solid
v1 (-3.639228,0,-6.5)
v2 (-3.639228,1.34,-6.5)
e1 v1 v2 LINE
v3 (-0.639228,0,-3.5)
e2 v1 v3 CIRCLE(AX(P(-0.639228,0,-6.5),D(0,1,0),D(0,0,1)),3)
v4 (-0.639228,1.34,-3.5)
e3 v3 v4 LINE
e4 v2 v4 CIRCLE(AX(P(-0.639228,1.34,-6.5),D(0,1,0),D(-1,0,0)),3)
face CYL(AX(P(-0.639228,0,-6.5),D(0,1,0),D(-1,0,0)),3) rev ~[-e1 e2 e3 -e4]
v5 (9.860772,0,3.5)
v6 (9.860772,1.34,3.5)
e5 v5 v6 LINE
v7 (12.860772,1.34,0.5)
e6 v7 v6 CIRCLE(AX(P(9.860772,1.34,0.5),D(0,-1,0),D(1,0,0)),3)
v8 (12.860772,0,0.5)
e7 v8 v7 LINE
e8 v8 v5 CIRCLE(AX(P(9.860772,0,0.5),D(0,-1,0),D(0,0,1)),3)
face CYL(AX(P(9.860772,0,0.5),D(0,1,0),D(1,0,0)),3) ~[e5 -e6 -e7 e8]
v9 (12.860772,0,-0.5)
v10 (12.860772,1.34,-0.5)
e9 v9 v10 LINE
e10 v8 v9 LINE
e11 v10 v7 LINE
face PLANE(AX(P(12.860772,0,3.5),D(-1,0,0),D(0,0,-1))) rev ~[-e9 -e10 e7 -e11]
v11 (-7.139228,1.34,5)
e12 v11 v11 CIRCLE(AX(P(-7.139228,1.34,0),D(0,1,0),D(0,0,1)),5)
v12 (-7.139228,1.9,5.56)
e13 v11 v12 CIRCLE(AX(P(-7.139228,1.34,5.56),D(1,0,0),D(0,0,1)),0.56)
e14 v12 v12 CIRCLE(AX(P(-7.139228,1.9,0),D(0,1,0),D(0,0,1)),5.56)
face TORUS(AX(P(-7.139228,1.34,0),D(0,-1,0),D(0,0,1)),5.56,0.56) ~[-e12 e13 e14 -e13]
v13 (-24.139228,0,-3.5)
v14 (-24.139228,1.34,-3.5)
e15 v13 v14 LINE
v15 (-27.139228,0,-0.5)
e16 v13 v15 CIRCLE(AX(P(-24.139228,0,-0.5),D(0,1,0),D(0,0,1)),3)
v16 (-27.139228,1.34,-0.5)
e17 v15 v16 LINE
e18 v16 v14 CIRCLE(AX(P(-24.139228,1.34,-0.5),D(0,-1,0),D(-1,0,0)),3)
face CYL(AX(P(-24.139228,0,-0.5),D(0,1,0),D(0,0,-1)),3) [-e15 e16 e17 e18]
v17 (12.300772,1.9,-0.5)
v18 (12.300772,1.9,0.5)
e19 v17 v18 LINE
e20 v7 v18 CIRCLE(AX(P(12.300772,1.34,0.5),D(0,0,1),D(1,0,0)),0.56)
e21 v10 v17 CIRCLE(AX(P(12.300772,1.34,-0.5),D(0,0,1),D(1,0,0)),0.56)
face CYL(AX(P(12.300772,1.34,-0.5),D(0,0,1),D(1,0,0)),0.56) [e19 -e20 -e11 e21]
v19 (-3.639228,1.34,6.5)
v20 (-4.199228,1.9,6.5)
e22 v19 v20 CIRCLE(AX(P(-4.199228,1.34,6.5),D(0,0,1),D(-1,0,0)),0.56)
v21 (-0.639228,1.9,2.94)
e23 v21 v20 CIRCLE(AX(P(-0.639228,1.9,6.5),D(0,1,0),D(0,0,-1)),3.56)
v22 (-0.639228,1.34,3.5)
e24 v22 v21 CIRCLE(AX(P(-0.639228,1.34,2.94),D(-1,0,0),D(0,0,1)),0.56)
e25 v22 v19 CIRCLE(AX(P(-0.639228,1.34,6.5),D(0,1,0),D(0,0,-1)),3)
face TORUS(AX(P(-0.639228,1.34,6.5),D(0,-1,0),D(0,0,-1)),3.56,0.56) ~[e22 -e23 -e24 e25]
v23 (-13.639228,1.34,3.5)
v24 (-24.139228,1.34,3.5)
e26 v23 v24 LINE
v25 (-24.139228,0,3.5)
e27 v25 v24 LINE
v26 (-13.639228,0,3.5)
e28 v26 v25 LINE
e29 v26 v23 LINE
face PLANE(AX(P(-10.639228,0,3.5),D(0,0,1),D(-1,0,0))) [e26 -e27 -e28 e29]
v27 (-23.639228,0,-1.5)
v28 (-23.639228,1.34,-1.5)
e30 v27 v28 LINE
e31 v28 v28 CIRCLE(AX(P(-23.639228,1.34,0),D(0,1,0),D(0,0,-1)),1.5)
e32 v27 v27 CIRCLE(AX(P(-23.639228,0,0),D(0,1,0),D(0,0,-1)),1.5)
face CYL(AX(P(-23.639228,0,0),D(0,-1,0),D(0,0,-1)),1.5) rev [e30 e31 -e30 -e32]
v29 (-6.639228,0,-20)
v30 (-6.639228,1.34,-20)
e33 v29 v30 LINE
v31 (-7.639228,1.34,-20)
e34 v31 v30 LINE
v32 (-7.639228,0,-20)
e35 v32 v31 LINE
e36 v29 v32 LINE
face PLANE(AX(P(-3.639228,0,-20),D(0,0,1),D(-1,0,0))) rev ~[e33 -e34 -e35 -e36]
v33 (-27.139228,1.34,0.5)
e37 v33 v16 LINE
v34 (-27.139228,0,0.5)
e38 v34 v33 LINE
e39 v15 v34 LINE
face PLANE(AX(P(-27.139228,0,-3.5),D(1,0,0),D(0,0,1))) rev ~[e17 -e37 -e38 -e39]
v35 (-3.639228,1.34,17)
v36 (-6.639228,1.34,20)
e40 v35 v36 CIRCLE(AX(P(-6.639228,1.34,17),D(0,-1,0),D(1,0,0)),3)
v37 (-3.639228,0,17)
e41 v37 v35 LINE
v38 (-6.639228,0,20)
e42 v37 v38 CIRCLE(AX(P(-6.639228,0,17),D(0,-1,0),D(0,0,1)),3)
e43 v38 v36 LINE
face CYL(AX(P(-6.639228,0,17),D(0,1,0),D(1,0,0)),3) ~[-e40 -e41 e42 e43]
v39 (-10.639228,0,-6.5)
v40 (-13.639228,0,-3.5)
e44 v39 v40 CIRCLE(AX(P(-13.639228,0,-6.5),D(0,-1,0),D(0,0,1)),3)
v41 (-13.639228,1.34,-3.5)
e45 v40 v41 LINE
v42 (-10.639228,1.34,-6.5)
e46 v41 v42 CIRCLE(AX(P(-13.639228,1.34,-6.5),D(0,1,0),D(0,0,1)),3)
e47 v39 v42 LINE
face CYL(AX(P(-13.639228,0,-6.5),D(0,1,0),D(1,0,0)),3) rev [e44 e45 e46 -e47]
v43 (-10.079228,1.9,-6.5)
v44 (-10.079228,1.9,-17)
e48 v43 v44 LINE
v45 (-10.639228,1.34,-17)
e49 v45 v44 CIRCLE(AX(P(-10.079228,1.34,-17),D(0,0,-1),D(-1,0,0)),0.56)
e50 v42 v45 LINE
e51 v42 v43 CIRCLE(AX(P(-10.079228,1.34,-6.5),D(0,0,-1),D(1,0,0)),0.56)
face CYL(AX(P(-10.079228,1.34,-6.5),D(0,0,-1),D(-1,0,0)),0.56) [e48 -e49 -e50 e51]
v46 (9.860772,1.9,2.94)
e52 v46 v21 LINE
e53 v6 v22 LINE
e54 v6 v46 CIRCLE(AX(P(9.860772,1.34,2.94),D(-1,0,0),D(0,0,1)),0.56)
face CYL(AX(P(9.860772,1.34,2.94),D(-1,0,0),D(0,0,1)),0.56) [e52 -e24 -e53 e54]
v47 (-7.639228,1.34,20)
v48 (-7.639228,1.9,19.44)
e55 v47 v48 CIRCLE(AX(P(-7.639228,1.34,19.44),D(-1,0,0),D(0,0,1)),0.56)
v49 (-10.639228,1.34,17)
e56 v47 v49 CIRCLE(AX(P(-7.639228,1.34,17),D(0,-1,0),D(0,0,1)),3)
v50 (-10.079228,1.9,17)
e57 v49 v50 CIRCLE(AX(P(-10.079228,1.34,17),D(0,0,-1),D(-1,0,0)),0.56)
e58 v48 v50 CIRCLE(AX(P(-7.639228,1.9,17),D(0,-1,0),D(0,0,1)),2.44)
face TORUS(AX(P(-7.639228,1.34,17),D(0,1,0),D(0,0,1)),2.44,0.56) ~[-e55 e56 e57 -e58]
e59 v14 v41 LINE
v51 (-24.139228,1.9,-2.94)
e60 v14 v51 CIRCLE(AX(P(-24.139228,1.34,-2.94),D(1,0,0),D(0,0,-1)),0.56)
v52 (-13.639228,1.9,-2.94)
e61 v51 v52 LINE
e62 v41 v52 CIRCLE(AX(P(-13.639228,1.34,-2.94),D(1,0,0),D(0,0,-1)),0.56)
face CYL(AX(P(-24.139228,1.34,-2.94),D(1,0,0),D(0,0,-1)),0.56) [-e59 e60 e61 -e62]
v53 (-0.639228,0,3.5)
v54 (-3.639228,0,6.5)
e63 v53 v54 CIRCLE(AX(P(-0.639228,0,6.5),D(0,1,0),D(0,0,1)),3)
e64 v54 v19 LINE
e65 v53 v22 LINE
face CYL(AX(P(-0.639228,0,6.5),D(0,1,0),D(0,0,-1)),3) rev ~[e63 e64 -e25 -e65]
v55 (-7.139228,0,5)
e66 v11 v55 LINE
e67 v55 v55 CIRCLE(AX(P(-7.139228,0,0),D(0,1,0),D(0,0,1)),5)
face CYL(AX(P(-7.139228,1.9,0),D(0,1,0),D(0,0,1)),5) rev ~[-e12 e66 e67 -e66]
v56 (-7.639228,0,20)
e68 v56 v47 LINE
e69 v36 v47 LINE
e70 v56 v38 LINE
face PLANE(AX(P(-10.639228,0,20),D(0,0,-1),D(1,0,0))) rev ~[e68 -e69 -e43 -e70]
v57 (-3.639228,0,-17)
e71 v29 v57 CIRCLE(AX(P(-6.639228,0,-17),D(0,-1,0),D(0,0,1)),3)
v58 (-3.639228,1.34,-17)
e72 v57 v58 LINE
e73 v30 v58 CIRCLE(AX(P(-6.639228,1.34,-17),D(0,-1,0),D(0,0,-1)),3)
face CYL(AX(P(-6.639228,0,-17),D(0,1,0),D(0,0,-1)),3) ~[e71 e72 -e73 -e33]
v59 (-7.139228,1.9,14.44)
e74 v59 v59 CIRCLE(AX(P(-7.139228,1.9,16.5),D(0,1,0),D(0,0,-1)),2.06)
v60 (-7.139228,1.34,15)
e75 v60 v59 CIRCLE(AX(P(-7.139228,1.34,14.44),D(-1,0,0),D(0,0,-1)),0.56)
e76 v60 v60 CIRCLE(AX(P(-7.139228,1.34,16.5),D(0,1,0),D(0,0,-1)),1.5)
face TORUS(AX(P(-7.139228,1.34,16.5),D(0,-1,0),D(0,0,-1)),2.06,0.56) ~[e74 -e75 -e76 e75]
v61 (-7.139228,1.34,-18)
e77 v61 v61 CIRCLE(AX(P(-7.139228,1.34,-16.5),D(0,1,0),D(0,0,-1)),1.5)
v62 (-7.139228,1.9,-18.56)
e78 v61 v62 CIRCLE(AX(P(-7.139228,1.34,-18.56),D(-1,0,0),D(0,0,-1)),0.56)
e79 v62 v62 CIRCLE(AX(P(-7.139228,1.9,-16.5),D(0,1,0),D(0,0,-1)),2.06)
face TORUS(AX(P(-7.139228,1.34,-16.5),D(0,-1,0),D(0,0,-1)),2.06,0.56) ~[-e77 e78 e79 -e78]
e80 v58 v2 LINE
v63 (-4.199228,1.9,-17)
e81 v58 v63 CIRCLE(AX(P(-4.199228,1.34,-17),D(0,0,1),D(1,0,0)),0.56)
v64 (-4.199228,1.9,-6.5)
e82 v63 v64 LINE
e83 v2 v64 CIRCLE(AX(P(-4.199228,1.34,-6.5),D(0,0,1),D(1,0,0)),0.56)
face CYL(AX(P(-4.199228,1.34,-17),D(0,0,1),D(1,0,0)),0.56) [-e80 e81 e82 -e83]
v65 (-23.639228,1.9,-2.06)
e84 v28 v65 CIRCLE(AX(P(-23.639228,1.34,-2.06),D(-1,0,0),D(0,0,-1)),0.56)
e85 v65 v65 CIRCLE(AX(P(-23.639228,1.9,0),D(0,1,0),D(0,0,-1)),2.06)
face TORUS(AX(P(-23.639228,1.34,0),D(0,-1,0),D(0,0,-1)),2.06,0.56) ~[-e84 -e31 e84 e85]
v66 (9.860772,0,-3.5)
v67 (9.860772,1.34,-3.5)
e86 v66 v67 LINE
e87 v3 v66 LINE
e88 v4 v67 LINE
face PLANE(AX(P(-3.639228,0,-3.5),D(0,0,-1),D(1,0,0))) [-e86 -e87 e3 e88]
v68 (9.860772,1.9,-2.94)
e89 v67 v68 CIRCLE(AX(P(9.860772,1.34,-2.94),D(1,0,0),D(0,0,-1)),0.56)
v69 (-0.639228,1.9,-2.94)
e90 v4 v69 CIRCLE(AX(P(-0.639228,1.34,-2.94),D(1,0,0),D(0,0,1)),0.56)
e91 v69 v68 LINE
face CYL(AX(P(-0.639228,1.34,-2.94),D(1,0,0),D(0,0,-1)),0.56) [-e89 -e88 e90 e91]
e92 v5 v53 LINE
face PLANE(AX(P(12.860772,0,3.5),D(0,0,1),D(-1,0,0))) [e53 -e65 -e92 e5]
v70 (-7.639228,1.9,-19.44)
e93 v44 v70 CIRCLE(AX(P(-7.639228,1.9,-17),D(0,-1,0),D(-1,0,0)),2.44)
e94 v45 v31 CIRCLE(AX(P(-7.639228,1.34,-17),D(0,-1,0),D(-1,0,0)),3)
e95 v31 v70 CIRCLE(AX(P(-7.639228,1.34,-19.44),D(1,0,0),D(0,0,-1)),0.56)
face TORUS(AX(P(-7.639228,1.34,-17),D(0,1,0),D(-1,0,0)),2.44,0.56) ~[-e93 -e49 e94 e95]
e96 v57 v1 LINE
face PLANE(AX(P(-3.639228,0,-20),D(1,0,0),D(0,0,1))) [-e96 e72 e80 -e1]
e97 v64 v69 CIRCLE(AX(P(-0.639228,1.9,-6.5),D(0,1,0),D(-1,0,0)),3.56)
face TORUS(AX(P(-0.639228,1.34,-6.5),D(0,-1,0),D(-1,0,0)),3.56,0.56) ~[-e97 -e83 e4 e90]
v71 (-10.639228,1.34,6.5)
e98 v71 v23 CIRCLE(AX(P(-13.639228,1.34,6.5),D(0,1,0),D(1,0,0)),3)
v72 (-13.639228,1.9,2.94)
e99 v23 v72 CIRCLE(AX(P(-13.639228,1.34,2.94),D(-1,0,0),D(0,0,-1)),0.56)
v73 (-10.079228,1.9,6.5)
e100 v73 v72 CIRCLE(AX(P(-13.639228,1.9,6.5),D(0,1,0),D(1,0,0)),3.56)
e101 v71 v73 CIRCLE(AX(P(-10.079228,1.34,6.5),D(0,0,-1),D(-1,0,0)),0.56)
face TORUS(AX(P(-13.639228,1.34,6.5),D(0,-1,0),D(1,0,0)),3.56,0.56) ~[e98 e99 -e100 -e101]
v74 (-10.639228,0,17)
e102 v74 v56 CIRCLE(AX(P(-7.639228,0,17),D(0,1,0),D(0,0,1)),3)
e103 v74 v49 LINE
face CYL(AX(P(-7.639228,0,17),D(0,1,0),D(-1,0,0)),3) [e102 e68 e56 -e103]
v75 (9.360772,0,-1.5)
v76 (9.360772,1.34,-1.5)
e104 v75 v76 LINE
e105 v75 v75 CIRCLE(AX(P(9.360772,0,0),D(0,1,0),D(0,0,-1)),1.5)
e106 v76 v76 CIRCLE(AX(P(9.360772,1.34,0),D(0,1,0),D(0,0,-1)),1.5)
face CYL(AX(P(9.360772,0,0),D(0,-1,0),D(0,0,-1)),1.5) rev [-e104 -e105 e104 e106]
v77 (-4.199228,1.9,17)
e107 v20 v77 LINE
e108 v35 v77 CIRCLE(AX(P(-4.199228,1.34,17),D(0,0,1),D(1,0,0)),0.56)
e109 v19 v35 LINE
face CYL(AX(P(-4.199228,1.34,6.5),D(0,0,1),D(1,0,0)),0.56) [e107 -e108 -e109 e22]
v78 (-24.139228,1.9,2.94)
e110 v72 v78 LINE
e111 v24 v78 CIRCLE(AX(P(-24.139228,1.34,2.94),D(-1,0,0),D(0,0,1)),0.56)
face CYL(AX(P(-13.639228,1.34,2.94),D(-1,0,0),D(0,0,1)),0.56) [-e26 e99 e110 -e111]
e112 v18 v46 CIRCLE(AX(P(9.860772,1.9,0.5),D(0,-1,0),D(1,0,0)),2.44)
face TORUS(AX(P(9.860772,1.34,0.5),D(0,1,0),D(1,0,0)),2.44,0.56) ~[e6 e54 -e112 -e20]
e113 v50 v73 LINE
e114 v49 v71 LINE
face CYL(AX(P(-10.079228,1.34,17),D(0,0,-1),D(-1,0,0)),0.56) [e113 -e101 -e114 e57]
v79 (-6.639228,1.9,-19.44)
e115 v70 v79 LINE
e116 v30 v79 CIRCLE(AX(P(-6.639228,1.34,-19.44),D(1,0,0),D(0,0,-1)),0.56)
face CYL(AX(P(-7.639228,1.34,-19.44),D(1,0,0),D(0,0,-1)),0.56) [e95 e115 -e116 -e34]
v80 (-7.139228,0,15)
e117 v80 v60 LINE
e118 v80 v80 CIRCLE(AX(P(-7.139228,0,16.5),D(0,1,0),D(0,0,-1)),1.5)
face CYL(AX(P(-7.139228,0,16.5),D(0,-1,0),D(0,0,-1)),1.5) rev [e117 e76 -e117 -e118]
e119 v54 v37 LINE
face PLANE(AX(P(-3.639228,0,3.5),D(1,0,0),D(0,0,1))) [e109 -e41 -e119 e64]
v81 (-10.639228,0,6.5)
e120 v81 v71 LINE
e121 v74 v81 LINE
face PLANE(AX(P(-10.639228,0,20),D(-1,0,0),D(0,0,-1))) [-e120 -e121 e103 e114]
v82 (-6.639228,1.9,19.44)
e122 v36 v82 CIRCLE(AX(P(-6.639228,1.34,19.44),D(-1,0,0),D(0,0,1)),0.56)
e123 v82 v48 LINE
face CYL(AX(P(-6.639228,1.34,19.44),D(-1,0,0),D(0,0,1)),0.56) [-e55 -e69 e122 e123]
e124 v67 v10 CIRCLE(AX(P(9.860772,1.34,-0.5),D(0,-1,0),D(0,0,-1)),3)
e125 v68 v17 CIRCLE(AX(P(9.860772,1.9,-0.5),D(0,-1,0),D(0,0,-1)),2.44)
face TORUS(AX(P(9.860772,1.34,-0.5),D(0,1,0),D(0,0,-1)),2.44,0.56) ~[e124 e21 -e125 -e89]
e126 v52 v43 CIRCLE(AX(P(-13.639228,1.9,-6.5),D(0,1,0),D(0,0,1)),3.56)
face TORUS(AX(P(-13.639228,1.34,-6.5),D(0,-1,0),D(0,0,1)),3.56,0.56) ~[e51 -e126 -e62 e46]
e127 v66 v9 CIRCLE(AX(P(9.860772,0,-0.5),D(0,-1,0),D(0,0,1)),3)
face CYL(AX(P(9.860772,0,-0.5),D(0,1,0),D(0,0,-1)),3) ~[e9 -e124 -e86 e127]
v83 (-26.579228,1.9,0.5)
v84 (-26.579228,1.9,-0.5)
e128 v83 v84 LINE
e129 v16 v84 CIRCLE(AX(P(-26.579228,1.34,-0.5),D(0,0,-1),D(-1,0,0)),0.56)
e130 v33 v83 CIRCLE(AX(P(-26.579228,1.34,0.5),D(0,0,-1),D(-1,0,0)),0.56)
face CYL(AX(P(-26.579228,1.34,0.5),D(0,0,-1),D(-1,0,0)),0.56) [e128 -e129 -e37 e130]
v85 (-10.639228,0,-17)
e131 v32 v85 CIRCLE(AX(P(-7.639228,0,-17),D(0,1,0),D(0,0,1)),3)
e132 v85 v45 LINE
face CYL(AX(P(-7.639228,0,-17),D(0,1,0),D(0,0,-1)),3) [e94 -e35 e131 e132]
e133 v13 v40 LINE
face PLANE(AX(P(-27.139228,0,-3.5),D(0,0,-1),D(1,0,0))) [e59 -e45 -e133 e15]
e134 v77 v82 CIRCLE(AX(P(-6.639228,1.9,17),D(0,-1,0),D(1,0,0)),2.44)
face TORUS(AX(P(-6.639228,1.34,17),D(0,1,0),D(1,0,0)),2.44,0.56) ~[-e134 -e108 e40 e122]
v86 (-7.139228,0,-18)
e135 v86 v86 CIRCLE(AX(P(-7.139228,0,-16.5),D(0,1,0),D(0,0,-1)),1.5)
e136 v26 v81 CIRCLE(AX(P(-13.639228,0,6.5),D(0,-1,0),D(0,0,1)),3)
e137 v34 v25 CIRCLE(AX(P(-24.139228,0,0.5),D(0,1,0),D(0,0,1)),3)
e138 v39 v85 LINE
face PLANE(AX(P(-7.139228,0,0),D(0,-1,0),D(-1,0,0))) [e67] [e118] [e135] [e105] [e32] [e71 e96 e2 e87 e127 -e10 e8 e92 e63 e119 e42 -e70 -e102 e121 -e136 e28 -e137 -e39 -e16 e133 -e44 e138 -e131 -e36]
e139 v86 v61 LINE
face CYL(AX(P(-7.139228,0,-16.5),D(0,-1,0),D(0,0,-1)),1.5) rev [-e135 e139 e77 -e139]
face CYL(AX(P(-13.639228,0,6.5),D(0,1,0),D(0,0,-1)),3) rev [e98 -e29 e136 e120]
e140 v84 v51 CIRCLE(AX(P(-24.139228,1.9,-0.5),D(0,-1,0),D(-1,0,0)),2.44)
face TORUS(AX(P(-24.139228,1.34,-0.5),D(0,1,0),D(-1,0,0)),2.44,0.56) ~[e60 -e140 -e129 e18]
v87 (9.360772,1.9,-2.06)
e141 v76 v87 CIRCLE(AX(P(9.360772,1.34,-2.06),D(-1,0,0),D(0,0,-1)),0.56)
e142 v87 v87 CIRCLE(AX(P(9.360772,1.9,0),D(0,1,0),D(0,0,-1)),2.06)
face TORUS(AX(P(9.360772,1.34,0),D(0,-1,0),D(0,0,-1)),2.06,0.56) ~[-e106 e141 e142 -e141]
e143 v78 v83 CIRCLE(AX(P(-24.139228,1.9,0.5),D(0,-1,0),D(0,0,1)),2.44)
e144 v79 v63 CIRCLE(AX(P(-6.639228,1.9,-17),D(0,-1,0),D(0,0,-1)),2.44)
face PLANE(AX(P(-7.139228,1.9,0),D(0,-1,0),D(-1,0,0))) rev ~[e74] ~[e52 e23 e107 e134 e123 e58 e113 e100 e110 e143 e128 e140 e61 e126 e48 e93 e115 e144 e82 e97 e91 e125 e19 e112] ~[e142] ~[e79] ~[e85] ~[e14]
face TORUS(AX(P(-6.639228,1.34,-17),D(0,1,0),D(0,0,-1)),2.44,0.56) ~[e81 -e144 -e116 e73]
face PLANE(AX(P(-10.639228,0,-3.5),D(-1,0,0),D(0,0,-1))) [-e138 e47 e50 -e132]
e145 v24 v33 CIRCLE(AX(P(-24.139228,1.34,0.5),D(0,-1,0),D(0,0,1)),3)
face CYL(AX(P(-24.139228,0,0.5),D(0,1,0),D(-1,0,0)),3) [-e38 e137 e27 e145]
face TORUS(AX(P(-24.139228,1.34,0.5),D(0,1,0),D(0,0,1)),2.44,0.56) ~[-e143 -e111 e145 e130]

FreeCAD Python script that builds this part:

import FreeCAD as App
import Part
import Sketcher

V = App.Vector


def edges_at(feature, points):
    """Names of the edges that pass closest to the given points."""
    edges = feature.Shape.Edges
    near = lambda p: min(range(len(edges)), key=lambda i: edges[i].distToShape(Part.Vertex(*p))[0])
    return sorted({f"Edge{near(p) + 1}" for p in points})

doc = App.newDocument("Part")
body = doc.addObject("PartDesign::Body", "Body")

# Sketch on XZ plane
sketch1 = doc.addObject("Sketcher::SketchObject", "Sketch")
body.addObject(sketch1)
sketch1.AttachmentSupport = (doc.XZ_Plane, [""])
sketch1.MapMode = "FlatFace"
sketch1.addGeometry([
    Part.LineSegment(V(-3.6, -20, 0), V(-10.6, -20, 0)),  # 0
    Part.LineSegment(V(-10.6, -20, 0), V(-10.6, -3.5, 0)),  # 1
    Part.LineSegment(V(-10.6, -3.5, 0), V(-27.1, -3.5, 0)),  # 2
    Part.LineSegment(V(-27.1, -3.5, 0), V(-27.1, 3.5, 0)),  # 3
    Part.LineSegment(V(-27.1, 3.5, 0), V(-10.6, 3.5, 0)),  # 4
    Part.LineSegment(V(-10.6, 3.5, 0), V(-10.6, 20, 0)),  # 5
    Part.LineSegment(V(-10.6, 20, 0), V(-3.6, 20, 0)),  # 6
    Part.LineSegment(V(-3.6, 20, 0), V(-3.6, 3.5, 0)),  # 7
    Part.LineSegment(V(-3.6, 3.5, 0), V(12.9, 3.5, 0)),  # 8
    Part.LineSegment(V(12.9, 3.5, 0), V(12.9, -3.5, 0)),  # 9
    Part.LineSegment(V(12.9, -3.5, 0), V(-3.6, -3.5, 0)),  # 10
    Part.LineSegment(V(-3.6, -3.5, 0), V(-3.6, -20, 0)),  # 11
    Part.Circle(V(-7.1, 16.5, 0), V(0, 0, 1), 1.5),  # 12
    Part.Circle(V(9.4, 0, 0), V(0, 0, 1), 1.5),  # 13
    Part.Circle(V(-23.6, 0, 0), V(0, 0, 1), 1.5),  # 14
    Part.Circle(V(-7.1, -16.5, 0), V(0, 0, 1), 1.5),  # 15
], False)
sketch1.addConstraint([
    Sketcher.Constraint("Coincident", 0, 2, 1, 1),
    Sketcher.Constraint("Coincident", 1, 2, 2, 1),
    Sketcher.Constraint("Coincident", 2, 2, 3, 1),
    Sketcher.Constraint("Coincident", 3, 2, 4, 1),
    Sketcher.Constraint("Coincident", 4, 2, 5, 1),
    Sketcher.Constraint("Coincident", 5, 2, 6, 1),
    Sketcher.Constraint("Coincident", 6, 2, 7, 1),
    Sketcher.Constraint("Coincident", 7, 2, 8, 1),
    Sketcher.Constraint("Coincident", 8, 2, 9, 1),
    Sketcher.Constraint("Coincident", 9, 2, 10, 1),
    Sketcher.Constraint("Coincident", 10, 2, 11, 1),
    Sketcher.Constraint("Coincident", 11, 2, 0, 1),
    Sketcher.Constraint("Horizontal", 0),
    Sketcher.Constraint("Vertical", 1),
    Sketcher.Constraint("Horizontal", 2),
    Sketcher.Constraint("Vertical", 3),
    Sketcher.Constraint("Horizontal", 4),
    Sketcher.Constraint("Vertical", 5),
    Sketcher.Constraint("Horizontal", 6),
    Sketcher.Constraint("Vertical", 7),
    Sketcher.Constraint("Horizontal", 8),
    Sketcher.Constraint("Vertical", 9),
    Sketcher.Constraint("Horizontal", 10),
    Sketcher.Constraint("Vertical", 11),
    Sketcher.Constraint("Equal", 12, 13),
    Sketcher.Constraint("Equal", 13, 14),
    Sketcher.Constraint("Equal", 14, 15),
    Sketcher.Constraint("Symmetric", 12, 3, 15, 3, -1),
    Sketcher.Constraint("Symmetric", 1, 2, 4, 2, -1),
    Sketcher.Constraint("Symmetric", 7, 2, 10, 2, -1),
    Sketcher.Constraint("PointOnObject", 13, 3, -1),
    Sketcher.Constraint("PointOnObject", 14, 3, -1),
    Sketcher.Constraint("Horizontal", 4, 2, 7, 2),
    Sketcher.Constraint("Equal", 4, 8),
    Sketcher.Constraint("Equal", 10, 1),
    Sketcher.Constraint("Equal", 6, 3),
    Sketcher.Constraint("Equal", 1, 5),
    Sketcher.Constraint("Diameter", 12, 3.0),
    Sketcher.Constraint("DistanceX", 0, 2, 0, 1, 7.0),
    Sketcher.Constraint("DistanceX", 2, 2, 2, 1, 16.5),
    Sketcher.Constraint("DistanceX", 14, 3, 13, 3, 33.0),
    Sketcher.Constraint("DistanceY", 15, 3, 12, 3, 33.0),
    Sketcher.Constraint("DistanceX", 14, 3, 0, 2, 13.0),
    Sketcher.Constraint("DistanceX", 2, 2, 15, 3, 20.0),
    Sketcher.Constraint("DistanceX", 12, 3, -1, 1, 7.139228),
])
pad1 = doc.addObject("PartDesign::Pad", "Pad")
body.addObject(pad1)
pad1.Profile = sketch1
pad1.Length = 1.9
pad1.Reversed = True
doc.recompute()

fillet = doc.addObject("PartDesign::Fillet", "Fillet")
body.addObject(fillet)
fillet.Base = (pad1, edges_at(pad1, [
    (-27.139, 0.95, -3.5),
    (-10.639, 0.95, -20),
    (-3.639, 0.95, -20),
    (12.861, 0.95, -3.5),
    (12.861, 0.95, 3.5),
    (-3.639, 0.95, 20),
    (-10.639, 0.95, 20),
    (-27.139, 0.95, 3.5),
]))
fillet.Radius = 3
doc.recompute()

fillet2 = doc.addObject("PartDesign::Fillet", "Fillet001")
body.addObject(fillet2)
fillet2.Base = (fillet, edges_at(fillet, [
    (-10.639, 0.95, -3.5),
    (-3.639, 0.95, -3.5),
    (-3.639, 0.95, 3.5),
    (-10.639, 0.95, 3.5),
]))
fillet2.Radius = 3

# Sketch on XZ plane
sketch2 = doc.addObject("Sketcher::SketchObject", "Sketch001")
body.addObject(sketch2)
sketch2.AttachmentSupport = (doc.XZ_Plane, [""])
sketch2.MapMode = "FlatFace"
sketch2.AttachmentOffset = App.Placement(V(0, 0, -1.9), App.Rotation())
sketch2.addGeometry(Part.Circle(V(-7, 0, 0), V(0, 0, 1), 5), False)
sketch2.addConstraint([
    Sketcher.Constraint("PointOnObject", 0, 3, -1),
    Sketcher.Constraint("Diameter", 0, 10.0),
    Sketcher.Constraint("DistanceX", 0, 3, -1, 1, 7.139228),
])
pocket1 = doc.addObject("PartDesign::Pocket", "Pocket")
body.addObject(pocket1)
pocket1.Profile = sketch2
pocket1.Length = 1.9
pocket1.Reversed = True
doc.recompute()

fillet3 = doc.addObject("PartDesign::Fillet", "Fillet002")
body.addObject(fillet3)
fillet3.Base = (pocket1, edges_at(pocket1, [
    (-3.639, 1.9, -11.75),
    (-18.889, 1.9, -3.5),
    (-10.639, 1.9, 11.75),
    (4.611, 1.9, 3.5),
    (-2.761, 1.9, -4.379),
    (-11.518, 1.9, -4.379),
    (-11.518, 1.9, 4.379),
    (-2.761, 1.9, 4.379),
    (-7.139, 1.9, -5),
    (-23.639, 1.9, 1.5),
    (-7.139, 1.9, -15),
    (9.361, 1.9, 1.5),
    (-7.139, 1.9, 18),
    (-18.889, 1.9, 3.5),
    (-27.139, 1.9, 0),
    (-7.139, 1.9, 20),
    (-3.639, 1.9, 11.75),
    (12.861, 1.9, 0),
    (4.611, 1.9, -3.5),
    (-7.139, 1.9, -20),
    (-10.639, 1.9, -11.75),
    (-4.518, 1.9, 19.121),
    (-9.761, 1.9, 19.121),
    (11.982, 1.9, 2.621),
    (11.982, 1.9, -2.621),
    (-4.518, 1.9, -19.121),
    (-9.761, 1.9, -19.121),
    (-26.261, 1.9, -2.621),
    (-26.261, 1.9, 2.621),
]))
fillet3.Radius = 0.56

doc.recompute()
